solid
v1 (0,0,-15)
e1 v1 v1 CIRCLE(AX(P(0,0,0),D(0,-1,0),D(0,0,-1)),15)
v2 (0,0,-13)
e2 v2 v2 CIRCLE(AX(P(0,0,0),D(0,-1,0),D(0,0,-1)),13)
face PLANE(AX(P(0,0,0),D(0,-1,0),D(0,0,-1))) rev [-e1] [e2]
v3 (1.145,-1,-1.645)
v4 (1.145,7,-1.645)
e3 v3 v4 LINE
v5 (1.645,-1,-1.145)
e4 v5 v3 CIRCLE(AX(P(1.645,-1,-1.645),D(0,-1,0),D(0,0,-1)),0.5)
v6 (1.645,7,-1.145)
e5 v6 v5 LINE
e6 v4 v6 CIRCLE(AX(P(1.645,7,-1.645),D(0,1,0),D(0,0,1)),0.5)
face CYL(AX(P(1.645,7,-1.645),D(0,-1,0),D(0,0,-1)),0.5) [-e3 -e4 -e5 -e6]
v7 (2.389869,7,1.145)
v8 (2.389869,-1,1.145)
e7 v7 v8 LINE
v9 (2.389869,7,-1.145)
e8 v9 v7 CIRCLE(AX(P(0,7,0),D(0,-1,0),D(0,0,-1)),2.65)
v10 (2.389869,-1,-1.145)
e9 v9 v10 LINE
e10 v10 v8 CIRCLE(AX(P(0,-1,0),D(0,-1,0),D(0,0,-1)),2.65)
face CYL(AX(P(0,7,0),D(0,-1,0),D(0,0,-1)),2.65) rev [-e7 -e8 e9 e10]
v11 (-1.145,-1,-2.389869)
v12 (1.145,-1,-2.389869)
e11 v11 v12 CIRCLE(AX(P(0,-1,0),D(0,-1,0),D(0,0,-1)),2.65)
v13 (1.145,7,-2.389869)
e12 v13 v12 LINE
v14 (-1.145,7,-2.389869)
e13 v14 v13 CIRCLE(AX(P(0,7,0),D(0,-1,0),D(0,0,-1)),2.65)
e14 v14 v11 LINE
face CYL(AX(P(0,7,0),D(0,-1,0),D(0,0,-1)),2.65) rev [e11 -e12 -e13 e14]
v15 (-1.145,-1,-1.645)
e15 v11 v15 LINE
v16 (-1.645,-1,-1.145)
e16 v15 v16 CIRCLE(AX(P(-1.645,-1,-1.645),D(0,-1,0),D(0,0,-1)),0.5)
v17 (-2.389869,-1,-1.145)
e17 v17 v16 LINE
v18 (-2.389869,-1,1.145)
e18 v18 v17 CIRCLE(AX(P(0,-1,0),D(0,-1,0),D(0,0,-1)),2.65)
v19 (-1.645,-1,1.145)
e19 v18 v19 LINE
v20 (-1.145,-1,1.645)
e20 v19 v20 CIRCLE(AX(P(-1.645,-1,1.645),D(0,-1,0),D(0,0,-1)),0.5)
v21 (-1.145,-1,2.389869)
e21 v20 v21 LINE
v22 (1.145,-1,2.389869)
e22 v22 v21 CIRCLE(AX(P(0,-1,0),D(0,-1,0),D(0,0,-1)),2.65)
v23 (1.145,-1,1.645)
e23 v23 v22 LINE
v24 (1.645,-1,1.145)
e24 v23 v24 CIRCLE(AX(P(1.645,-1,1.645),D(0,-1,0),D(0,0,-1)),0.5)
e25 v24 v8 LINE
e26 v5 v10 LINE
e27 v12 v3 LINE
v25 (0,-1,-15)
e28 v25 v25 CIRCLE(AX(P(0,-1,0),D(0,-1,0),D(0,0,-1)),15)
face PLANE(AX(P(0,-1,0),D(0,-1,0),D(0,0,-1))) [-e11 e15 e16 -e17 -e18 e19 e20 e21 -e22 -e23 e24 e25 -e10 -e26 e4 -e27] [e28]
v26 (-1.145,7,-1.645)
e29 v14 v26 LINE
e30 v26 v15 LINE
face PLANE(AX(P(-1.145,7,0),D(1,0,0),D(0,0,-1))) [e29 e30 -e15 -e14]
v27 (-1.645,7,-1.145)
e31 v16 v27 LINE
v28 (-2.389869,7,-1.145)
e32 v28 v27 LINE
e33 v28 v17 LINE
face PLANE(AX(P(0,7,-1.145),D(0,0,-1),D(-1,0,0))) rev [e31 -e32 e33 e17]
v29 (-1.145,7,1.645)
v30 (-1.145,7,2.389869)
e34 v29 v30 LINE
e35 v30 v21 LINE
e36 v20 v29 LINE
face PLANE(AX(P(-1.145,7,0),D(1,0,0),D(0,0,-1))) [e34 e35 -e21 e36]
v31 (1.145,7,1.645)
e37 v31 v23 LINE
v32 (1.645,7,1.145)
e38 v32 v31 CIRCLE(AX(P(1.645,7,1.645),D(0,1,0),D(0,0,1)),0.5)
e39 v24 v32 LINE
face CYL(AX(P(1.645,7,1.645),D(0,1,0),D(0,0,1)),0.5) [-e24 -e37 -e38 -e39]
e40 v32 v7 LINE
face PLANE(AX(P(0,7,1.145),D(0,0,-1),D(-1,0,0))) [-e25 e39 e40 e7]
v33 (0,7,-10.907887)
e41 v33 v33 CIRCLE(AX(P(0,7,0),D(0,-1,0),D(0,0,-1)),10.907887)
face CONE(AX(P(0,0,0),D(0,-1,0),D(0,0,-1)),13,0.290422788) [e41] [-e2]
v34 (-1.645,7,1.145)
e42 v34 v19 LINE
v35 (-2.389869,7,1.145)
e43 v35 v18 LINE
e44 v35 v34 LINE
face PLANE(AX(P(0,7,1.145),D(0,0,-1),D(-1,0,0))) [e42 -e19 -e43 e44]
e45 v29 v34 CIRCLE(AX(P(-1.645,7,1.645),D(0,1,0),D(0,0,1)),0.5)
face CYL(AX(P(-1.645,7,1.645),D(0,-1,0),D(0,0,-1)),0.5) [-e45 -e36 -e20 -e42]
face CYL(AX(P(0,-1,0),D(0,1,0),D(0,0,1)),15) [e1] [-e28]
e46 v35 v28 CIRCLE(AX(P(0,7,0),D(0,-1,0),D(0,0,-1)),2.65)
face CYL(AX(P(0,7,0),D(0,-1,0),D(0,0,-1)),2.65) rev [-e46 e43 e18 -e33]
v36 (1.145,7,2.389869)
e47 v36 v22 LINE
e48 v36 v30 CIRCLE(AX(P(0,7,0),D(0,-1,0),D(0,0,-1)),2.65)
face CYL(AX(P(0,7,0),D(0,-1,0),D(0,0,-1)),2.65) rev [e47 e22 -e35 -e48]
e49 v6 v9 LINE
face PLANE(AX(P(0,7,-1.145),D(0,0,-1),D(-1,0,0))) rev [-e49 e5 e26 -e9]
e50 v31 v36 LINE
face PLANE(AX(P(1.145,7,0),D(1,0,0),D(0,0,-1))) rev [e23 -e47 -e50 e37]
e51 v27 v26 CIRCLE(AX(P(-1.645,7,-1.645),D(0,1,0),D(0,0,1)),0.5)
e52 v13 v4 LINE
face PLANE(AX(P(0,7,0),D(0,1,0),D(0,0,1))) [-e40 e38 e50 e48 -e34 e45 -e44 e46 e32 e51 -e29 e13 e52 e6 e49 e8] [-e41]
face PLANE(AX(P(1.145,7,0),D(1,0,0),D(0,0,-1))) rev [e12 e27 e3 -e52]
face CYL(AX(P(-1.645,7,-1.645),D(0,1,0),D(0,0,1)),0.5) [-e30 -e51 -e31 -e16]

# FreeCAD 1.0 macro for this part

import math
import FreeCAD as App
import Part
import Sketcher

V = App.Vector
Q = App.Units.Quantity


def edges_at(feature, points):
    """Names of the edges that pass closest to the given points."""
    edges = feature.Shape.Edges
    near = lambda p: min(range(len(edges)), key=lambda i: edges[i].distToShape(Part.Vertex(*p))[0])
    return sorted({f"Edge{near(p) + 1}" for p in points})


def add_polygon(sketch, points):
    """Adds a closed chain of lines whose ends are joined by coincident constraints."""
    first, n = sketch.GeometryCount, len(points)
    for a, b in zip(points, points[1:] + points[:1]):
        sketch.addGeometry(Part.LineSegment(App.Vector(*a, 0), App.Vector(*b, 0)), False)
    for i in range(n):
        sketch.addConstraint(Sketcher.Constraint("Coincident", first + i, 2, first + (i + 1) % n, 1))

doc = App.newDocument("Part")
body = doc.addObject("PartDesign::Body", "Body")

# Sketch on XZ plane
sketch1 = body.newObject("Sketcher::SketchObject", "Sketch")
sketch1.AttachmentSupport = (doc.getObject("XZ_Plane"), [""])
sketch1.MapMode = "FlatFace"
sketch1.addGeometry(Part.Circle(V(0, 0, 0), V(0, 0, 1), 13), False)
sketch1.addConstraint(Sketcher.Constraint("Coincident", 0, 3, -1, 1))
sketch1.addConstraint(Sketcher.Constraint("Diameter", 0, Q("26 mm")))
pad1 = body.newObject("PartDesign::Pad", "Pad")
pad1.Profile = sketch1
pad1.Length = 7
pad1.Reversed = True

# Sketch on YZ plane
sketch2 = body.newObject("Sketcher::SketchObject", "Sketch001")
sketch2.AttachmentSupport = (doc.getObject("YZ_Plane"), [""])
sketch2.MapMode = "FlatFace"
add_polygon(sketch2, [(0, 13), (7, 10.9), (7, 13)])  # lines 0-2
sketch2.addConstraint(Sketcher.Constraint("Vertical", 1))
sketch2.addConstraint(Sketcher.Constraint("Horizontal", 2))
sketch2.addConstraint(Sketcher.Constraint("PointOnObject", 2, 2, -2))
sketch2.addConstraint(Sketcher.Constraint("DistanceX", 2, 2, 2, 1, Q("7 mm")))
sketch2.addConstraint(Sketcher.Constraint("DistanceY", -1, 1, 1, 2, Q("13 mm")))
sketch2.addConstraint(Sketcher.Constraint("Angle", 0, Q("-16.64 deg")))
groove = body.newObject("PartDesign::Groove", "Groove")
groove.Profile = sketch2
groove.ReferenceAxis = (sketch2, ["H_Axis"])
groove.Angle = 360

# Sketch on XZ plane
sketch3 = body.newObject("Sketcher::SketchObject", "Sketch002")
sketch3.AttachmentSupport = (doc.getObject("XZ_Plane"), [""])
sketch3.MapMode = "FlatFace"
sketch3.addGeometry(Part.Circle(V(0, 0, 0), V(0, 0, 1), 15), False)
sketch3.addConstraint(Sketcher.Constraint("Coincident", 0, 3, -1, 1))
sketch3.addConstraint(Sketcher.Constraint("Diameter", 0, Q("30 mm")))
pad2 = body.newObject("PartDesign::Pad", "Pad001")
pad2.Profile = sketch3
pad2.Length = 1

# Sketch on XZ plane
sketch4 = body.newObject("Sketcher::SketchObject", "Sketch003")
sketch4.AttachmentSupport = (doc.getObject("XZ_Plane"), [""])
sketch4.MapMode = "FlatFace"
sketch4.AttachmentOffset = App.Placement(V(0, 0, 1), App.Rotation())
sketch4.addGeometry(Part.LineSegment(V(1.1, 1.1, 0), V(1.1, 2.4, 0)), False)
sketch4.addGeometry(Part.ArcOfCircle(Part.Circle(V(0, 0, 0), V(0, 0, 1), 2.6), math.radians(64), math.radians(116)), False)
sketch4.addGeometry(Part.LineSegment(V(-1.1, 2.4, 0), V(-1.1, 1.1, 0)), False)
sketch4.addGeometry(Part.LineSegment(V(-1.1, 1.1, 0), V(-2.4, 1.1, 0)), False)
sketch4.addGeometry(Part.ArcOfCircle(Part.Circle(V(0, 0, 0), V(0, 0, 1), 2.6), math.radians(154), math.radians(206)), False)
sketch4.addGeometry(Part.LineSegment(V(-2.4, -1.1, 0), V(-1.1, -1.1, 0)), False)
sketch4.addGeometry(Part.LineSegment(V(-1.1, -1.1, 0), V(-1.1, -2.4, 0)), False)
sketch4.addGeometry(Part.ArcOfCircle(Part.Circle(V(0, 0, 0), V(0, 0, 1), 2.6), math.radians(-116), math.radians(-64)), False)
sketch4.addGeometry(Part.LineSegment(V(1.1, -2.4, 0), V(1.1, -1.1, 0)), False)
sketch4.addGeometry(Part.LineSegment(V(1.1, -1.1, 0), V(2.4, -1.1, 0)), False)
sketch4.addGeometry(Part.ArcOfCircle(Part.Circle(V(0, 0, 0), V(0, 0, 1), 2.6), math.radians(-26), math.radians(0)), False)
sketch4.addGeometry(Part.ArcOfCircle(Part.Circle(V(0, 0, 0), V(0, 0, 1), 2.6), math.radians(0), math.radians(26)), False)
sketch4.addGeometry(Part.LineSegment(V(2.4, 1.1, 0), V(1.1, 1.1, 0)), False)
sketch4.addConstraint(Sketcher.Constraint("Coincident", 0, 2, 1, 1))
sketch4.addConstraint(Sketcher.Constraint("Coincident", 1, 2, 2, 1))
sketch4.addConstraint(Sketcher.Constraint("Coincident", 2, 2, 3, 1))
sketch4.addConstraint(Sketcher.Constraint("Coincident", 3, 2, 4, 1))
sketch4.addConstraint(Sketcher.Constraint("Coincident", 4, 2, 5, 1))
sketch4.addConstraint(Sketcher.Constraint("Coincident", 5, 2, 6, 1))
sketch4.addConstraint(Sketcher.Constraint("Coincident", 6, 2, 7, 1))
sketch4.addConstraint(Sketcher.Constraint("Coincident", 7, 2, 8, 1))
sketch4.addConstraint(Sketcher.Constraint("Coincident", 8, 2, 9, 1))
sketch4.addConstraint(Sketcher.Constraint("Coincident", 9, 2, 10, 1))
sketch4.addConstraint(Sketcher.Constraint("Tangent", 10, 2, 11, 1))
sketch4.addConstraint(Sketcher.Constraint("Coincident", 11, 2, 12, 1))
sketch4.addConstraint(Sketcher.Constraint("Coincident", 12, 2, 0, 1))
sketch4.addConstraint(Sketcher.Constraint("Vertical", 0))
sketch4.addConstraint(Sketcher.Constraint("Vertical", 2))
sketch4.addConstraint(Sketcher.Constraint("Horizontal", 3))
sketch4.addConstraint(Sketcher.Constraint("Horizontal", 5))
sketch4.addConstraint(Sketcher.Constraint("Vertical", 6))
sketch4.addConstraint(Sketcher.Constraint("Vertical", 8))
sketch4.addConstraint(Sketcher.Constraint("Horizontal", 9))
sketch4.addConstraint(Sketcher.Constraint("Horizontal", 12))
sketch4.addConstraint(Sketcher.Constraint("Coincident", 1, 3, -1, 1))
sketch4.addConstraint(Sketcher.Constraint("Coincident", 4, 3, -1, 1))
sketch4.addConstraint(Sketcher.Constraint("Coincident", 7, 3, -1, 1))
sketch4.addConstraint(Sketcher.Constraint("Coincident", 10, 3, -1, 1))
sketch4.addConstraint(Sketcher.Constraint("Equal", 1, 4))
sketch4.addConstraint(Sketcher.Constraint("Equal", 4, 7))
sketch4.addConstraint(Sketcher.Constraint("Equal", 7, 10))
sketch4.addConstraint(Sketcher.Constraint("Equal", 10, 11))
sketch4.addConstraint(Sketcher.Constraint("Symmetric", 2, 2, 8, 2, -1, 1))
sketch4.addConstraint(Sketcher.Constraint("Symmetric", 5, 2, 12, 2, -1, 1))
sketch4.addConstraint(Sketcher.Constraint("Symmetric", 5, 2, 8, 2, -2))
sketch4.addConstraint(Sketcher.Constraint("PointOnObject", 10, 2, -1))
sketch4.addConstraint(Sketcher.Constraint("Equal", 12, 0))
sketch4.addConstraint(Sketcher.Constraint("Radius", 1, Q("2.65 mm")))
sketch4.addConstraint(Sketcher.Constraint("DistanceX", 1, 2, 0, 2, Q("2.29 mm")))
pocket1 = body.newObject("PartDesign::Pocket", "Pocket")
pocket1.Profile = sketch4
pocket1.Type = "ThroughAll"
doc.recompute()

fillet = body.newObject("PartDesign::Fillet", "Fillet")
fillet.Base = (pocket1, edges_at(pocket1, [
    (-1.145, 3, 1.145),
    (1.145, 3, 1.145),
    (1.145, 3, -1.145),
    (-1.145, 3, -1.145),
]))
fillet.Radius = 0.5

doc.recompute()
